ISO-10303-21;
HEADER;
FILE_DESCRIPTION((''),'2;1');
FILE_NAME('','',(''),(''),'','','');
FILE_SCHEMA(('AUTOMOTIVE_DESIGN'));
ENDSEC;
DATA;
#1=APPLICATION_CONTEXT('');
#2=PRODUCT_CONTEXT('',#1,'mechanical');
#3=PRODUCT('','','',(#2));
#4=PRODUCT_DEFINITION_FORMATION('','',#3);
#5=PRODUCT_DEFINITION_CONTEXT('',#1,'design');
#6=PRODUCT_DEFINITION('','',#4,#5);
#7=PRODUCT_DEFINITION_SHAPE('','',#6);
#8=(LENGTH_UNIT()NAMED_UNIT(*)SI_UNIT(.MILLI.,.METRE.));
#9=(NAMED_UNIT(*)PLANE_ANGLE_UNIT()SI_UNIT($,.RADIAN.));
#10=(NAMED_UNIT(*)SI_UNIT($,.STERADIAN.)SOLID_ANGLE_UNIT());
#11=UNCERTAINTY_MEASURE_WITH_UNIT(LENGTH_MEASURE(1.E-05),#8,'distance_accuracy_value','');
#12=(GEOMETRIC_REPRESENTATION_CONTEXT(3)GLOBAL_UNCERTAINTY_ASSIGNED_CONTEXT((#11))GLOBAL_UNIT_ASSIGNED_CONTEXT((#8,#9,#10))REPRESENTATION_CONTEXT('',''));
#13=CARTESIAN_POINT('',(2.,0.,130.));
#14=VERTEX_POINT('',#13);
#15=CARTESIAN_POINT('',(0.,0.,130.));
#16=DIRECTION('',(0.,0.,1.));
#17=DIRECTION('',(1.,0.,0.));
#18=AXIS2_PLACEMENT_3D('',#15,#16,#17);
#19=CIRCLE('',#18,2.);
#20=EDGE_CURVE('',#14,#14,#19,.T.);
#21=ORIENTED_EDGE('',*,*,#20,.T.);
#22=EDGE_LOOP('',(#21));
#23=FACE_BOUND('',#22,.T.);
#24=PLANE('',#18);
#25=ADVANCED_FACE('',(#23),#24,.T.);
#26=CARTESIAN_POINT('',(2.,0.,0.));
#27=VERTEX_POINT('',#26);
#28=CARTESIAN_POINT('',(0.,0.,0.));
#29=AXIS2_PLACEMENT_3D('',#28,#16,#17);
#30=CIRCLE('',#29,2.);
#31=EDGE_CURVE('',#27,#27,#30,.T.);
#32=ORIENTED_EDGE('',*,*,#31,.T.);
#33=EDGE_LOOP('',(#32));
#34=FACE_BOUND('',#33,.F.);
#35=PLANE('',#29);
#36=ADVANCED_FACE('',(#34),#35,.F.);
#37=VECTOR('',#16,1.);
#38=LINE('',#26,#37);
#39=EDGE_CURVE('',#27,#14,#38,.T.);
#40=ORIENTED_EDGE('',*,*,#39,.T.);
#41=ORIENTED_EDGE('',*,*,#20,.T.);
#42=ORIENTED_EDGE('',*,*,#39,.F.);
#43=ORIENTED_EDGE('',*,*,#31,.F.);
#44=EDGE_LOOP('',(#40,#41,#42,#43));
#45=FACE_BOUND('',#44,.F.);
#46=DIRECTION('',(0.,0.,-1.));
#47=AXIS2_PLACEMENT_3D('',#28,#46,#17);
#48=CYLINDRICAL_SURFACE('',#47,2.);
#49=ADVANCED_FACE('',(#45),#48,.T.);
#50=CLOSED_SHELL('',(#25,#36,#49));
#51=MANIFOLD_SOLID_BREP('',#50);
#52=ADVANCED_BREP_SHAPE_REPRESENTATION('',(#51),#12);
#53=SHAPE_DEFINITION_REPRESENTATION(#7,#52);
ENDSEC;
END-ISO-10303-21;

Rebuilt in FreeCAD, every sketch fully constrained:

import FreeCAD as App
import Part
import Sketcher

doc = App.newDocument("Part")
body = doc.addObject("PartDesign::Body", "Body")

# Sketch on XY plane
sketch1 = doc.addObject("Sketcher::SketchObject", "Sketch")
body.addObject(sketch1)
sketch1.AttachmentSupport = (doc.XY_Plane, [""])
sketch1.MapMode = "FlatFace"
sketch1.addGeometry(Part.Circle(App.Vector(0, 0, 0), App.Vector(0, 0, 1), 2), False)
sketch1.addConstraint([
    Sketcher.Constraint("Coincident", 0, 3, -1, 1),
    Sketcher.Constraint("Diameter", 0, 4.0),
])
pad1 = doc.addObject("PartDesign::Pad", "Pad")
body.addObject(pad1)
pad1.Profile = sketch1
pad1.Length = 130

doc.recompute()
